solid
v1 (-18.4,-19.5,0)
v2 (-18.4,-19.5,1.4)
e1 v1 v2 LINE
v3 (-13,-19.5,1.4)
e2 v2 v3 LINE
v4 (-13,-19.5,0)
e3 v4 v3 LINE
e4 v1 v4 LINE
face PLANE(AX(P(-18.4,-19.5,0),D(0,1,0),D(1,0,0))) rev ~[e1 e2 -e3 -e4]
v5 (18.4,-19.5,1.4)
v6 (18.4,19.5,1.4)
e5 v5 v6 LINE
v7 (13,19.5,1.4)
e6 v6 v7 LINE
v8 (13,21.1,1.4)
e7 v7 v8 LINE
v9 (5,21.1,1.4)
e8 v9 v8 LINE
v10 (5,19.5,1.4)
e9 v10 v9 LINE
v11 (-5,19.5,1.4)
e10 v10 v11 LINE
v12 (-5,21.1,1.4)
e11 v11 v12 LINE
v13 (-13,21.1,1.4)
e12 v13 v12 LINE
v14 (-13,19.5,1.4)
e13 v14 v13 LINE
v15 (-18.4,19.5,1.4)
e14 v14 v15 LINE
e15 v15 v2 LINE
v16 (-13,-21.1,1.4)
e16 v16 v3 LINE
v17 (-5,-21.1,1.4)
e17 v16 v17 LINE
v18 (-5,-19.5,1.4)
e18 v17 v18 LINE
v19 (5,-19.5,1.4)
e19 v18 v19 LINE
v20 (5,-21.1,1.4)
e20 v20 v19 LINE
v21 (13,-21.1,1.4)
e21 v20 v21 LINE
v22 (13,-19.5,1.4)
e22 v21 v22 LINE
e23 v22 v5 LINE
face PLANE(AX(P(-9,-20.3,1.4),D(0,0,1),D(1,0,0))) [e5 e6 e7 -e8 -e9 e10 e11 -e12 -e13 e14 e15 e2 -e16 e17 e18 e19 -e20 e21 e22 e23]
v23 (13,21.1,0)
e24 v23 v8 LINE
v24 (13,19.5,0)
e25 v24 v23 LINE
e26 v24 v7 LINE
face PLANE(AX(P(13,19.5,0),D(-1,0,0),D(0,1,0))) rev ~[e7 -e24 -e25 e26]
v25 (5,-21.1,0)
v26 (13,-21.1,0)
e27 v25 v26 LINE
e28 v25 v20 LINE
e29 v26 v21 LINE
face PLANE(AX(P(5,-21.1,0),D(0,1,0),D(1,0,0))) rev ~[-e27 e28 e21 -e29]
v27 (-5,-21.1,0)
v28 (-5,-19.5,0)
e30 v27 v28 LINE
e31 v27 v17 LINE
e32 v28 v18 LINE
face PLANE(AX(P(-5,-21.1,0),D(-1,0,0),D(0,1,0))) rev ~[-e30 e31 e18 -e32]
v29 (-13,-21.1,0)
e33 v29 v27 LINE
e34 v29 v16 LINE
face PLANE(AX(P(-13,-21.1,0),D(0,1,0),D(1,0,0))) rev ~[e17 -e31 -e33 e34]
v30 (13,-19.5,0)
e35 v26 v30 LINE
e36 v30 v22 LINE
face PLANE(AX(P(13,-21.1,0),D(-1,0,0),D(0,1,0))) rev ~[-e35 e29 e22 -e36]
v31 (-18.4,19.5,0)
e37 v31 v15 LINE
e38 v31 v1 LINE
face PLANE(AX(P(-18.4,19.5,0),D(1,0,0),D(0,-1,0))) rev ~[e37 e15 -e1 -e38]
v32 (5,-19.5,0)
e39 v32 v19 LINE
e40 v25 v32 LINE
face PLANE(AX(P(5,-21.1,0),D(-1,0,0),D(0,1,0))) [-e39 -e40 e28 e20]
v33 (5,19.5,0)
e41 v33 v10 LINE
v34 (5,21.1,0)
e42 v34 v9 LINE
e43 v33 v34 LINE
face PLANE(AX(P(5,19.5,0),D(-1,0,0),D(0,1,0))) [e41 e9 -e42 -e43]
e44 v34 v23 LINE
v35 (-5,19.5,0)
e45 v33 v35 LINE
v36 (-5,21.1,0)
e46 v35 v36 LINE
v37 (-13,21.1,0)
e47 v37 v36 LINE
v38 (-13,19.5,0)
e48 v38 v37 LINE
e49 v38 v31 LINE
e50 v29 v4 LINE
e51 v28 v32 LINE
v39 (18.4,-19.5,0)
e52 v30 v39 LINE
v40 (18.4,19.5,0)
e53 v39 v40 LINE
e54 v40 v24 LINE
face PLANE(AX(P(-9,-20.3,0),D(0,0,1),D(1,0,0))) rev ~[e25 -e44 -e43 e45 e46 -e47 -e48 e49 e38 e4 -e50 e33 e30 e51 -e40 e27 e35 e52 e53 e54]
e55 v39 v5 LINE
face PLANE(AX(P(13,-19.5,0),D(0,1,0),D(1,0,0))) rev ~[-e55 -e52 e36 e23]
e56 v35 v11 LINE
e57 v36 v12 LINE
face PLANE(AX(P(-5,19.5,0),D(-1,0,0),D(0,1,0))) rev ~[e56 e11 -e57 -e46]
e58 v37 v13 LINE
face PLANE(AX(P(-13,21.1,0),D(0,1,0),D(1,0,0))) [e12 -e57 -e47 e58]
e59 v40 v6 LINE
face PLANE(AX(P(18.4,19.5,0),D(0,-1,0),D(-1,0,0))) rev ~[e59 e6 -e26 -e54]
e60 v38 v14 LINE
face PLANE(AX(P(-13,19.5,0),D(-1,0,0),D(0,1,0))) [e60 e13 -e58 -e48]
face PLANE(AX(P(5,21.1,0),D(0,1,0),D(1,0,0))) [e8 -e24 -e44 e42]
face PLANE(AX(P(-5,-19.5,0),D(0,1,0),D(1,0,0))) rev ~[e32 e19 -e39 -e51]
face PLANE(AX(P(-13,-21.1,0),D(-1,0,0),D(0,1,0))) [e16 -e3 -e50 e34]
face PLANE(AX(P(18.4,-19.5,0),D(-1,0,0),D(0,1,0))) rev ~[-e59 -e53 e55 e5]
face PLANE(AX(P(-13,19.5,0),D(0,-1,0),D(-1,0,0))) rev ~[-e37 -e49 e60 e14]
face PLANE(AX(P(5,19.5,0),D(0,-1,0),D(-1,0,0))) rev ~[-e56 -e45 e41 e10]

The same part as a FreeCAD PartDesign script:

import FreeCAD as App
import Part
import Sketcher

V = App.Vector
Q = App.Units.Quantity


def add_polygon(sketch, points):
    """Adds a closed chain of lines whose ends are joined by coincident constraints."""
    first, n = sketch.GeometryCount, len(points)
    for a, b in zip(points, points[1:] + points[:1]):
        sketch.addGeometry(Part.LineSegment(App.Vector(*a, 0), App.Vector(*b, 0)), False)
    for i in range(n):
        sketch.addConstraint(Sketcher.Constraint("Coincident", first + i, 2, first + (i + 1) % n, 1))

doc = App.newDocument("Part")
body = doc.addObject("PartDesign::Body", "Body")

# Sketch on XY plane
sketch1 = body.newObject("Sketcher::SketchObject", "Sketch")
sketch1.AttachmentSupport = (doc.getObject("XY_Plane"), [""])
sketch1.MapMode = "FlatFace"
add_polygon(sketch1, [(-13, -19.5), (-13, -21.1), (-5, -21.1), (-5, -19.5), (5, -19.5), (5, -21.1), (13, -21.1), (13, -19.5), (18.4, -19.5), (18.4, 19.5), (13, 19.5), (13, 21.1), (5, 21.1), (5, 19.5), (-5, 19.5), (-5, 21.1), (-13, 21.1), (-13, 19.5), (-18.4, 19.5), (-18.4, -19.5)])  # lines 0-19
sketch1.addConstraint(Sketcher.Constraint("Vertical", 0))
sketch1.addConstraint(Sketcher.Constraint("Horizontal", 1))
sketch1.addConstraint(Sketcher.Constraint("Vertical", 2))
sketch1.addConstraint(Sketcher.Constraint("Horizontal", 3))
sketch1.addConstraint(Sketcher.Constraint("Vertical", 4))
sketch1.addConstraint(Sketcher.Constraint("Horizontal", 5))
sketch1.addConstraint(Sketcher.Constraint("Vertical", 6))
sketch1.addConstraint(Sketcher.Constraint("Horizontal", 7))
sketch1.addConstraint(Sketcher.Constraint("Vertical", 8))
sketch1.addConstraint(Sketcher.Constraint("Horizontal", 9))
sketch1.addConstraint(Sketcher.Constraint("Vertical", 10))
sketch1.addConstraint(Sketcher.Constraint("Horizontal", 11))
sketch1.addConstraint(Sketcher.Constraint("Vertical", 12))
sketch1.addConstraint(Sketcher.Constraint("Horizontal", 13))
sketch1.addConstraint(Sketcher.Constraint("Vertical", 14))
sketch1.addConstraint(Sketcher.Constraint("Horizontal", 15))
sketch1.addConstraint(Sketcher.Constraint("Vertical", 16))
sketch1.addConstraint(Sketcher.Constraint("Horizontal", 17))
sketch1.addConstraint(Sketcher.Constraint("Vertical", 18))
sketch1.addConstraint(Sketcher.Constraint("Horizontal", 19))
sketch1.addConstraint(Sketcher.Constraint("Symmetric", 0, 2, 10, 2, -1, 1))
sketch1.addConstraint(Sketcher.Constraint("Symmetric", 2, 2, 12, 2, -1, 1))
sketch1.addConstraint(Sketcher.Constraint("Symmetric", 4, 2, 14, 2, -1, 1))
sketch1.addConstraint(Sketcher.Constraint("Symmetric", 6, 2, 16, 2, -1, 1))
sketch1.addConstraint(Sketcher.Constraint("Symmetric", 8, 2, 18, 2, -1, 1))
sketch1.addConstraint(Sketcher.Constraint("Symmetric", 1, 2, 4, 2, -2))
sketch1.addConstraint(Sketcher.Constraint("Symmetric", 9, 2, 16, 2, -2))
sketch1.addConstraint(Sketcher.Constraint("Horizontal", 3, 2, 6, 2))
sketch1.addConstraint(Sketcher.Constraint("DistanceX", 1, 1, 1, 2, Q("8 mm")))
sketch1.addConstraint(Sketcher.Constraint("DistanceX", 3, 1, 3, 2, Q("10 mm")))
sketch1.addConstraint(Sketcher.Constraint("DistanceY", 8, 1, 8, 2, Q("39 mm")))
sketch1.addConstraint(Sketcher.Constraint("DistanceX", 7, 1, 7, 2, Q("5.4 mm")))
sketch1.addConstraint(Sketcher.Constraint("DistanceY", 0, 2, 0, 1, Q("1.6 mm")))
pad1 = body.newObject("PartDesign::Pad", "Pad")
pad1.Profile = sketch1
pad1.Length = 1.4

doc.recompute()
